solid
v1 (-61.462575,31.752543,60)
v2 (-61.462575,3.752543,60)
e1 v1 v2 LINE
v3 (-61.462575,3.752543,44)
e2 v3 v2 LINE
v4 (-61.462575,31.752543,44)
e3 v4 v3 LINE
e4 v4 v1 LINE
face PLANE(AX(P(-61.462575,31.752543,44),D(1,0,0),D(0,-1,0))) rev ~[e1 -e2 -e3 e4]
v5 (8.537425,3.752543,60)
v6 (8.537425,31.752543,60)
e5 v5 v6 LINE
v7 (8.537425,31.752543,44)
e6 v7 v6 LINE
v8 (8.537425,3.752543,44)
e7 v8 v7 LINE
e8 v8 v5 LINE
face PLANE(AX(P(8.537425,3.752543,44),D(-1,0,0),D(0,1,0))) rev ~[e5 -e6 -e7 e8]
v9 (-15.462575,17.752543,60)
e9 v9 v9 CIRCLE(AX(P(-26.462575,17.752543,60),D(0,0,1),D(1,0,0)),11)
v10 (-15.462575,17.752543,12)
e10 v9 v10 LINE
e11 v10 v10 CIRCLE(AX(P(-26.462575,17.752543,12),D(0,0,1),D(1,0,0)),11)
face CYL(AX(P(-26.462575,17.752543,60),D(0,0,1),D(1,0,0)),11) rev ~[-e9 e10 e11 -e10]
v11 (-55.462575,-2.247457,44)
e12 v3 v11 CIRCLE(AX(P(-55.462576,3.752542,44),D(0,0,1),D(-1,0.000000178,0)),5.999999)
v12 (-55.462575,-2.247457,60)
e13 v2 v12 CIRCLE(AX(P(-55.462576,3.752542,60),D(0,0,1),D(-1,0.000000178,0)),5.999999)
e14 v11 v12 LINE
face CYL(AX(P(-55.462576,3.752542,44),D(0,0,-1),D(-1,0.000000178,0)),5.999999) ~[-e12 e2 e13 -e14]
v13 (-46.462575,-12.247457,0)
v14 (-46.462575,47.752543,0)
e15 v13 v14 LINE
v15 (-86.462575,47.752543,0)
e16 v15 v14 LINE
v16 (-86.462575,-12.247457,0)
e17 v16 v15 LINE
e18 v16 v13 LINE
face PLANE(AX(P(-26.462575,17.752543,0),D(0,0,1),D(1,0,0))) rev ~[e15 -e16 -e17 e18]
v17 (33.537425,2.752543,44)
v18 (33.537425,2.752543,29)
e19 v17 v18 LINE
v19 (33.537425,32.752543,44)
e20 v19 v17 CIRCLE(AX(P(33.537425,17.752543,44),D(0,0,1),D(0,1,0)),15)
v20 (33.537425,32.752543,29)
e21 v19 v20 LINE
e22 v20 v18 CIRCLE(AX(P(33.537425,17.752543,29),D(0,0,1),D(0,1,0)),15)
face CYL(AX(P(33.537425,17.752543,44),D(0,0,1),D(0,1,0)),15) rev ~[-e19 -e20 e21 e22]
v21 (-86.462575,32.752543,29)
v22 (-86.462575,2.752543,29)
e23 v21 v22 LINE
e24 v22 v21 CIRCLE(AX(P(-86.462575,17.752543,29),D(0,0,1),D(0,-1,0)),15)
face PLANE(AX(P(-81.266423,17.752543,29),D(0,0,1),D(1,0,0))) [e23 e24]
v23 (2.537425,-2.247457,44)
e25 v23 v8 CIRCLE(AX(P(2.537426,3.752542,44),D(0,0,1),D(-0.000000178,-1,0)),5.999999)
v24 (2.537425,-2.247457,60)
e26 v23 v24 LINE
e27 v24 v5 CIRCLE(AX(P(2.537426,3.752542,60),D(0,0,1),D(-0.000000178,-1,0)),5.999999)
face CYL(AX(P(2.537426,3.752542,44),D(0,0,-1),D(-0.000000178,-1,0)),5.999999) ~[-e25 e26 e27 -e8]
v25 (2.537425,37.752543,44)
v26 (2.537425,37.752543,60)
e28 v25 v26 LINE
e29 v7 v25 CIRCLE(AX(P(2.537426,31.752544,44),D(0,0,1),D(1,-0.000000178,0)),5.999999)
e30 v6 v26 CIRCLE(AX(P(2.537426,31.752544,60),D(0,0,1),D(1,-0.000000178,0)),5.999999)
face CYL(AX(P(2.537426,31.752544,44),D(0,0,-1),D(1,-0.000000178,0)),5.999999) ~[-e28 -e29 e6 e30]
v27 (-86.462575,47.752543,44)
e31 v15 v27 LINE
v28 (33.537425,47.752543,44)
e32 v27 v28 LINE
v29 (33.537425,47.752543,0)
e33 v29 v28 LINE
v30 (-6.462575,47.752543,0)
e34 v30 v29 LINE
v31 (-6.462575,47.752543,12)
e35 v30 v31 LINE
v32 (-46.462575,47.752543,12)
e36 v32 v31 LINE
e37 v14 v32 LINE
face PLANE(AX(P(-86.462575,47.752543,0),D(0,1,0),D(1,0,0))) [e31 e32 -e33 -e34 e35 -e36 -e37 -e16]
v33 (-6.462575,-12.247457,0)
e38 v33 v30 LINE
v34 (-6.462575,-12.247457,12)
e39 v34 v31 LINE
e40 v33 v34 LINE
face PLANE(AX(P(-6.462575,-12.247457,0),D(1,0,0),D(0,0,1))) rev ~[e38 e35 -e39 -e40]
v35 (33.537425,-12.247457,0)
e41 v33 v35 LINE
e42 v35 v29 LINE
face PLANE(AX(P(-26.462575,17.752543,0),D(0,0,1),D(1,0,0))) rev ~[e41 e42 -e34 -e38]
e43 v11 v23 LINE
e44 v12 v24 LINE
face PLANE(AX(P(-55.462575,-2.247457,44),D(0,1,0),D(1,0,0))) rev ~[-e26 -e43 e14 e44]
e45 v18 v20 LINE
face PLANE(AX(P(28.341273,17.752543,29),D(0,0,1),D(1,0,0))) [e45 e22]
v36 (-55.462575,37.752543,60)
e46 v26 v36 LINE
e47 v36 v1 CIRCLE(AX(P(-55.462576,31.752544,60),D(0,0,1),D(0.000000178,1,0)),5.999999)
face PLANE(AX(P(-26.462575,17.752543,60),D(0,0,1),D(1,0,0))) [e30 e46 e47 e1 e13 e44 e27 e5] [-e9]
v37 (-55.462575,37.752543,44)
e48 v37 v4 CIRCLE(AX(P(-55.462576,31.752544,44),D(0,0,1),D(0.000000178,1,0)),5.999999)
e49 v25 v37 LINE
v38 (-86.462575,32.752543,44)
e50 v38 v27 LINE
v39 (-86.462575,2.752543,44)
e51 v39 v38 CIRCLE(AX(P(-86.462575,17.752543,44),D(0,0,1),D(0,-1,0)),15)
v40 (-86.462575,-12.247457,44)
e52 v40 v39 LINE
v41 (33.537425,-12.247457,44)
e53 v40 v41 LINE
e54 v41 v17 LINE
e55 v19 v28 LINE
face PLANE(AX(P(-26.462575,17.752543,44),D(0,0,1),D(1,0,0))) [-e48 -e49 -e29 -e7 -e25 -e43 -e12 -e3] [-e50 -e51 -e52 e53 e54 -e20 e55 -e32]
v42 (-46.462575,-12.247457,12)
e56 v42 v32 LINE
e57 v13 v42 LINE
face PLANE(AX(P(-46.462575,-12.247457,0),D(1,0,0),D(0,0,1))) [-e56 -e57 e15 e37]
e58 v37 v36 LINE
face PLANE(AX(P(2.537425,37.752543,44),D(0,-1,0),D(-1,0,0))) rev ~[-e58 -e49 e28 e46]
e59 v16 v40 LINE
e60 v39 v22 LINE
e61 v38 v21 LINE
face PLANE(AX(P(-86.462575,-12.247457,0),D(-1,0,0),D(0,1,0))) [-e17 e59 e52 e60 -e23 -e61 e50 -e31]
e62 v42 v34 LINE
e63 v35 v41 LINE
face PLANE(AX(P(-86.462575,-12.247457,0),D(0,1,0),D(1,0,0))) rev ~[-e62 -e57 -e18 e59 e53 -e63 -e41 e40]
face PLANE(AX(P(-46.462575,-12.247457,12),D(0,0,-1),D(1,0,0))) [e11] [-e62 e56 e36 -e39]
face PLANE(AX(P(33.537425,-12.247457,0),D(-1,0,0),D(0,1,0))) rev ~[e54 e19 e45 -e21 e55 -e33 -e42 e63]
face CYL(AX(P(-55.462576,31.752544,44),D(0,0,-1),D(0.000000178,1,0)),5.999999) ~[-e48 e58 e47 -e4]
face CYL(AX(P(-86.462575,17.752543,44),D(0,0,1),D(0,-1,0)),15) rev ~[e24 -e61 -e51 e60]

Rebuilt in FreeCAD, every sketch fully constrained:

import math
import FreeCAD as App
import Part
import Sketcher
from FreeCAD import Vector
Q = App.Units.Quantity


def add_polygon(sketch, points):
    """Adds a closed chain of lines whose ends are joined by coincident constraints."""
    first, n = sketch.GeometryCount, len(points)
    for a, b in zip(points, points[1:] + points[:1]):
        sketch.addGeometry(Part.LineSegment(App.Vector(*a, 0), App.Vector(*b, 0)), False)
    for i in range(n):
        sketch.addConstraint(Sketcher.Constraint("Coincident", first + i, 2, first + (i + 1) % n, 1))

doc = App.newDocument("Part")
body = doc.addObject("PartDesign::Body", "Body")

# Sketch on XY plane
sketch1 = doc.addObject("Sketcher::SketchObject", "Sketch")
body.addObject(sketch1)
sketch1.AttachmentSupport = (doc.XY_Plane, [""])
sketch1.MapMode = "FlatFace"
add_polygon(sketch1, [(-86, 48), (-86, -12), (34, -12), (34, 48)])  # lines 0-3
sketch1.addConstraint([
    Sketcher.Constraint("Vertical", 0),
    Sketcher.Constraint("Horizontal", 1),
    Sketcher.Constraint("Vertical", 2),
    Sketcher.Constraint("Horizontal", 3),
    Sketcher.Constraint("DistanceX", 1, 1, 1, 2, Q("120 mm")),
    Sketcher.Constraint("DistanceY", 0, 2, 0, 1, Q("60 mm")),
    Sketcher.Constraint("DistanceX", 0, 2, -1, 1, Q("86.462575 mm")),
    Sketcher.Constraint("DistanceY", 0, 2, -1, 1, Q("12.247457 mm")),
])
pad1 = doc.addObject("PartDesign::Pad", "Pad")
body.addObject(pad1)
pad1.Profile = sketch1
pad1.Length = 44

# Sketch on XY plane
sketch2 = doc.addObject("Sketcher::SketchObject", "Sketch001")
body.addObject(sketch2)
sketch2.AttachmentSupport = (doc.XY_Plane, [""])
sketch2.MapMode = "FlatFace"
sketch2.AttachmentOffset = App.Placement(Vector(0, 0, 44), App.Rotation())
sketch2.addGeometry([
    Part.ArcOfCircle(Part.Circle(Vector(-55, 4, 0), Vector(0, 0, 1), 6), math.radians(180), math.radians(270)),  # 0
    Part.LineSegment(Vector(-55, -2, 0), Vector(3, -2, 0)),  # 1
    Part.ArcOfCircle(Part.Circle(Vector(3, 4, 0), Vector(0, 0, 1), 6), math.radians(-90), math.radians(0)),  # 2
    Part.LineSegment(Vector(9, 4, 0), Vector(9, 32, 0)),  # 3
    Part.ArcOfCircle(Part.Circle(Vector(3, 32, 0), Vector(0, 0, 1), 6), math.radians(0), math.radians(90)),  # 4
    Part.LineSegment(Vector(3, 38, 0), Vector(-55, 38, 0)),  # 5
    Part.ArcOfCircle(Part.Circle(Vector(-55, 32, 0), Vector(0, 0, 1), 6), math.radians(90), math.radians(180)),  # 6
    Part.LineSegment(Vector(-61, 32, 0), Vector(-61, 4, 0)),  # 7
], False)
sketch2.addConstraint([
    Sketcher.Constraint("Tangent", 0, 2, 1, 1),
    Sketcher.Constraint("Tangent", 1, 2, 2, 1),
    Sketcher.Constraint("Tangent", 2, 2, 3, 1),
    Sketcher.Constraint("Tangent", 3, 2, 4, 1),
    Sketcher.Constraint("Tangent", 4, 2, 5, 1),
    Sketcher.Constraint("Tangent", 5, 2, 6, 1),
    Sketcher.Constraint("Tangent", 6, 2, 7, 1),
    Sketcher.Constraint("Tangent", 7, 2, 0, 1),
    Sketcher.Constraint("Horizontal", 1),
    Sketcher.Constraint("Vertical", 3),
    Sketcher.Constraint("Horizontal", 5),
    Sketcher.Constraint("Vertical", 7),
    Sketcher.Constraint("Equal", 0, 2),
    Sketcher.Constraint("Equal", 2, 4),
    Sketcher.Constraint("Equal", 4, 6),
    Sketcher.Constraint("Radius", 0, Q("5.999999 mm")),
    Sketcher.Constraint("DistanceX", 1, 1, 1, 2, Q("58 mm")),
    Sketcher.Constraint("DistanceY", 3, 1, 3, 2, Q("28 mm")),
    Sketcher.Constraint("DistanceY", -1, 1, 0, 3, Q("3.752542 mm")),
    Sketcher.Constraint("DistanceX", 0, 3, -1, 1, Q("55.462576 mm")),
])
pad2 = doc.addObject("PartDesign::Pad", "Pad001")
body.addObject(pad2)
pad2.Profile = sketch2
pad2.Length = 16

# Sketch on XY plane
sketch3 = doc.addObject("Sketcher::SketchObject", "Sketch002")
body.addObject(sketch3)
sketch3.AttachmentSupport = (doc.XY_Plane, [""])
sketch3.MapMode = "FlatFace"
sketch3.AttachmentOffset = App.Placement(Vector(0, 0, 44), App.Rotation())
sketch3.addGeometry([
    Part.LineSegment(Vector(34, 3, 0), Vector(34, 33, 0)),
    Part.ArcOfCircle(Part.Circle(Vector(34, 18, 0), Vector(0, 0, 1), 15), math.radians(90), math.radians(270)),
    Part.LineSegment(Vector(-86, 33, 0), Vector(-86, 3, 0)),
    Part.ArcOfCircle(Part.Circle(Vector(-86, 18, 0), Vector(0, 0, 1), 15), math.radians(-90), math.radians(90)),
], False)
sketch3.addConstraint([
    Sketcher.Constraint("Coincident", 0, 1, 1, 2),
    Sketcher.Constraint("Coincident", 1, 1, 0, 2),
    Sketcher.Constraint("Coincident", 2, 1, 3, 2),
    Sketcher.Constraint("Coincident", 3, 1, 2, 2),
    Sketcher.Constraint("Vertical", 0),
    Sketcher.Constraint("Vertical", 2),
    Sketcher.Constraint("Equal", 1, 3),
    Sketcher.Constraint("Horizontal", 1, 3, 3, 3),
    Sketcher.Constraint("Vertical", 1, 3, 0, 1),
    Sketcher.Constraint("Vertical", 3, 3, 2, 1),
    Sketcher.Constraint("Radius", 1, Q("15 mm")),
    Sketcher.Constraint("DistanceX", 3, 3, 1, 3, Q("120 mm")),
    Sketcher.Constraint("DistanceX", -1, 1, 1, 3, Q("33.537425 mm")),
    Sketcher.Constraint("DistanceY", -1, 1, 1, 3, Q("17.752543 mm")),
])
pocket1 = doc.addObject("PartDesign::Pocket", "Pocket")
body.addObject(pocket1)
pocket1.Profile = sketch3
pocket1.Length = 15

# Sketch on XZ plane
sketch4 = doc.addObject("Sketcher::SketchObject", "Sketch003")
body.addObject(sketch4)
sketch4.AttachmentSupport = (doc.XZ_Plane, [""])
sketch4.MapMode = "FlatFace"
sketch4.AttachmentOffset = App.Placement(Vector(0, 0, 12.247457), App.Rotation())
add_polygon(sketch4, [(-46, 12), (-46, 0), (-6, 0), (-6, 12)])  # lines 0-3
sketch4.addConstraint([
    Sketcher.Constraint("Vertical", 0),
    Sketcher.Constraint("Horizontal", 1),
    Sketcher.Constraint("Vertical", 2),
    Sketcher.Constraint("Horizontal", 3),
    Sketcher.Constraint("PointOnObject", 0, 2, -1),
    Sketcher.Constraint("DistanceX", 1, 1, 1, 2, Q("40 mm")),
    Sketcher.Constraint("DistanceY", 0, 2, 0, 1, Q("12 mm")),
    Sketcher.Constraint("DistanceX", 0, 2, -1, 1, Q("46.462575 mm")),
])
pocket2 = doc.addObject("PartDesign::Pocket", "Pocket001")
body.addObject(pocket2)
pocket2.Profile = sketch4
pocket2.Length = 60

# Sketch on XY plane
sketch5 = doc.addObject("Sketcher::SketchObject", "Sketch004")
body.addObject(sketch5)
sketch5.AttachmentSupport = (doc.XY_Plane, [""])
sketch5.MapMode = "FlatFace"
sketch5.AttachmentOffset = App.Placement(Vector(0, 0, 60), App.Rotation())
sketch5.addGeometry(Part.Circle(Vector(-26, 18, 0), Vector(0, 0, 1), 11), False)
sketch5.addConstraint([
    Sketcher.Constraint("Diameter", 0, Q("22 mm")),
    Sketcher.Constraint("DistanceX", 0, 3, -1, 1, Q("26.462575 mm")),
    Sketcher.Constraint("DistanceY", -1, 1, 0, 3, Q("17.752543 mm")),
])
pocket3 = doc.addObject("PartDesign::Pocket", "Pocket002")
body.addObject(pocket3)
pocket3.Profile = sketch5
pocket3.Type = "ThroughAll"

doc.recompute()
